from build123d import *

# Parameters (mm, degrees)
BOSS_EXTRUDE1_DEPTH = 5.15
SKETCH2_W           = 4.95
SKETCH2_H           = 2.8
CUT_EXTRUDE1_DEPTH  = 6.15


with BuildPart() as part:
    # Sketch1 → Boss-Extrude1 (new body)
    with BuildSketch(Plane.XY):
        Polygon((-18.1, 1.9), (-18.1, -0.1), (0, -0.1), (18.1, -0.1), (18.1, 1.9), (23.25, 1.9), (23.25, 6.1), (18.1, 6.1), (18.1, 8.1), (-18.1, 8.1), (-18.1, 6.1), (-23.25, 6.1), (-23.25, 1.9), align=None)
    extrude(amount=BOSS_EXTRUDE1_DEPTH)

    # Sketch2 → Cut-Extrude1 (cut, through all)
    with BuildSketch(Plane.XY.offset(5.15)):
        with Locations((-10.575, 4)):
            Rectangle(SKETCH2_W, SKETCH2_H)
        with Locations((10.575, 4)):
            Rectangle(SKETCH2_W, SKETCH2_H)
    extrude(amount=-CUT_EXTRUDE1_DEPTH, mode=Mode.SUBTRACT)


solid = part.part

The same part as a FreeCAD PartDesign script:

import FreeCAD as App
import Part
import Sketcher
from FreeCAD import Vector
Q = App.Units.Quantity

doc = App.newDocument("Part")
body = doc.addObject("PartDesign::Body", "Body")

# Sketch on XY plane
sketch1 = doc.addObject("Sketcher::SketchObject", "Sketch")
body.addObject(sketch1)
sketch1.AttachmentSupport = (doc.XY_Plane, [""])
sketch1.MapMode = "FlatFace"
sketch1.addGeometry([
    Part.LineSegment(Vector(-18.1, 1.9, 0), Vector(-18.1, -0.1, 0)),  # 0
    Part.LineSegment(Vector(-18.1, -0.1, 0), Vector(18.1, -0.1, 0)),  # 1
    Part.LineSegment(Vector(18.1, -0.1, 0), Vector(18.1, 1.9, 0)),  # 2
    Part.LineSegment(Vector(18.1, 1.9, 0), Vector(23.25, 1.9, 0)),  # 3
    Part.LineSegment(Vector(23.25, 1.9, 0), Vector(23.25, 6.1, 0)),  # 4
    Part.LineSegment(Vector(23.25, 6.1, 0), Vector(18.1, 6.1, 0)),  # 5
    Part.LineSegment(Vector(18.1, 6.1, 0), Vector(18.1, 8.1, 0)),  # 6
    Part.LineSegment(Vector(18.1, 8.1, 0), Vector(-18.1, 8.1, 0)),  # 7
    Part.LineSegment(Vector(-18.1, 8.1, 0), Vector(-18.1, 6.1, 0)),  # 8
    Part.LineSegment(Vector(-18.1, 6.1, 0), Vector(-23.25, 6.1, 0)),  # 9
    Part.LineSegment(Vector(-23.25, 6.1, 0), Vector(-23.25, 1.9, 0)),  # 10
    Part.LineSegment(Vector(-23.25, 1.9, 0), Vector(-18.1, 1.9, 0)),  # 11
], False)
sketch1.addConstraint([
    Sketcher.Constraint("Coincident", 0, 2, 1, 1),
    Sketcher.Constraint("Coincident", 1, 2, 2, 1),
    Sketcher.Constraint("Coincident", 2, 2, 3, 1),
    Sketcher.Constraint("Coincident", 3, 2, 4, 1),
    Sketcher.Constraint("Coincident", 4, 2, 5, 1),
    Sketcher.Constraint("Coincident", 5, 2, 6, 1),
    Sketcher.Constraint("Coincident", 6, 2, 7, 1),
    Sketcher.Constraint("Coincident", 7, 2, 8, 1),
    Sketcher.Constraint("Coincident", 8, 2, 9, 1),
    Sketcher.Constraint("Coincident", 9, 2, 10, 1),
    Sketcher.Constraint("Coincident", 10, 2, 11, 1),
    Sketcher.Constraint("Coincident", 11, 2, 0, 1),
    Sketcher.Constraint("Vertical", 0),
    Sketcher.Constraint("Horizontal", 1),
    Sketcher.Constraint("Vertical", 2),
    Sketcher.Constraint("Horizontal", 3),
    Sketcher.Constraint("Vertical", 4),
    Sketcher.Constraint("Horizontal", 5),
    Sketcher.Constraint("Vertical", 6),
    Sketcher.Constraint("Horizontal", 7),
    Sketcher.Constraint("Vertical", 8),
    Sketcher.Constraint("Horizontal", 9),
    Sketcher.Constraint("Vertical", 10),
    Sketcher.Constraint("Horizontal", 11),
    Sketcher.Constraint("Symmetric", 5, 2, 8, 2, -2),
    Sketcher.Constraint("Symmetric", 3, 2, 10, 2, -2),
    Sketcher.Constraint("Vertical", 2, 2, 5, 2),
    Sketcher.Constraint("Vertical", 0, 2, 7, 2),
    Sketcher.Constraint("Equal", 2, 6),
    Sketcher.Constraint("DistanceY", 0, 2, 0, 1, Q("2 mm")),
    Sketcher.Constraint("DistanceX", 1, 1, 1, 2, Q("36.2 mm")),
    Sketcher.Constraint("DistanceY", 4, 1, 4, 2, Q("4.2 mm")),
    Sketcher.Constraint("DistanceX", 3, 1, 3, 2, Q("5.15 mm")),
    Sketcher.Constraint("DistanceY", 0, 2, -1, 1, Q("0.1 mm")),
])
pad1 = doc.addObject("PartDesign::Pad", "Pad")
body.addObject(pad1)
pad1.Profile = sketch1
pad1.Length = 5.15

# Sketch on XY plane
sketch2 = doc.addObject("Sketcher::SketchObject", "Sketch001")
body.addObject(sketch2)
sketch2.AttachmentSupport = (doc.XY_Plane, [""])
sketch2.MapMode = "FlatFace"
sketch2.AttachmentOffset = App.Placement(Vector(0, 0, 5.15), App.Rotation())
sketch2.addGeometry([
    Part.LineSegment(Vector(-13.05, 5.4, 0), Vector(-13.05, 2.6, 0)),  # 0
    Part.LineSegment(Vector(-13.05, 2.6, 0), Vector(-8.1, 2.6, 0)),  # 1
    Part.LineSegment(Vector(-8.1, 2.6, 0), Vector(-8.1, 5.4, 0)),  # 2
    Part.LineSegment(Vector(-8.1, 5.4, 0), Vector(-13.05, 5.4, 0)),  # 3
    Part.LineSegment(Vector(8.1, 5.4, 0), Vector(8.1, 2.6, 0)),  # 4
    Part.LineSegment(Vector(8.1, 2.6, 0), Vector(13.05, 2.6, 0)),  # 5
    Part.LineSegment(Vector(13.05, 2.6, 0), Vector(13.05, 5.4, 0)),  # 6
    Part.LineSegment(Vector(13.05, 5.4, 0), Vector(8.1, 5.4, 0)),  # 7
], False)
sketch2.addConstraint([
    Sketcher.Constraint("Coincident", 0, 2, 1, 1),
    Sketcher.Constraint("Coincident", 1, 2, 2, 1),
    Sketcher.Constraint("Coincident", 2, 2, 3, 1),
    Sketcher.Constraint("Coincident", 3, 2, 0, 1),
    Sketcher.Constraint("Coincident", 4, 2, 5, 1),
    Sketcher.Constraint("Coincident", 5, 2, 6, 1),
    Sketcher.Constraint("Coincident", 6, 2, 7, 1),
    Sketcher.Constraint("Coincident", 7, 2, 4, 1),
    Sketcher.Constraint("Vertical", 0),
    Sketcher.Constraint("Horizontal", 1),
    Sketcher.Constraint("Vertical", 2),
    Sketcher.Constraint("Horizontal", 3),
    Sketcher.Constraint("Vertical", 4),
    Sketcher.Constraint("Horizontal", 5),
    Sketcher.Constraint("Vertical", 6),
    Sketcher.Constraint("Horizontal", 7),
    Sketcher.Constraint("Symmetric", 1, 2, 4, 2, -2),
    Sketcher.Constraint("Symmetric", 3, 2, 6, 2, -2),
    Sketcher.Constraint("DistanceY", 0, 2, 0, 1, Q("2.8 mm")),
    Sketcher.Constraint("DistanceX", 1, 1, 1, 2, Q("4.95 mm")),
    Sketcher.Constraint("DistanceY", -1, 1, 0, 2, Q("2.6 mm")),
    Sketcher.Constraint("DistanceX", 1, 2, -1, 1, Q("8.1 mm")),
])
pocket1 = doc.addObject("PartDesign::Pocket", "Pocket")
body.addObject(pocket1)
pocket1.Profile = sketch2
pocket1.Type = "ThroughAll"

doc.recompute()
